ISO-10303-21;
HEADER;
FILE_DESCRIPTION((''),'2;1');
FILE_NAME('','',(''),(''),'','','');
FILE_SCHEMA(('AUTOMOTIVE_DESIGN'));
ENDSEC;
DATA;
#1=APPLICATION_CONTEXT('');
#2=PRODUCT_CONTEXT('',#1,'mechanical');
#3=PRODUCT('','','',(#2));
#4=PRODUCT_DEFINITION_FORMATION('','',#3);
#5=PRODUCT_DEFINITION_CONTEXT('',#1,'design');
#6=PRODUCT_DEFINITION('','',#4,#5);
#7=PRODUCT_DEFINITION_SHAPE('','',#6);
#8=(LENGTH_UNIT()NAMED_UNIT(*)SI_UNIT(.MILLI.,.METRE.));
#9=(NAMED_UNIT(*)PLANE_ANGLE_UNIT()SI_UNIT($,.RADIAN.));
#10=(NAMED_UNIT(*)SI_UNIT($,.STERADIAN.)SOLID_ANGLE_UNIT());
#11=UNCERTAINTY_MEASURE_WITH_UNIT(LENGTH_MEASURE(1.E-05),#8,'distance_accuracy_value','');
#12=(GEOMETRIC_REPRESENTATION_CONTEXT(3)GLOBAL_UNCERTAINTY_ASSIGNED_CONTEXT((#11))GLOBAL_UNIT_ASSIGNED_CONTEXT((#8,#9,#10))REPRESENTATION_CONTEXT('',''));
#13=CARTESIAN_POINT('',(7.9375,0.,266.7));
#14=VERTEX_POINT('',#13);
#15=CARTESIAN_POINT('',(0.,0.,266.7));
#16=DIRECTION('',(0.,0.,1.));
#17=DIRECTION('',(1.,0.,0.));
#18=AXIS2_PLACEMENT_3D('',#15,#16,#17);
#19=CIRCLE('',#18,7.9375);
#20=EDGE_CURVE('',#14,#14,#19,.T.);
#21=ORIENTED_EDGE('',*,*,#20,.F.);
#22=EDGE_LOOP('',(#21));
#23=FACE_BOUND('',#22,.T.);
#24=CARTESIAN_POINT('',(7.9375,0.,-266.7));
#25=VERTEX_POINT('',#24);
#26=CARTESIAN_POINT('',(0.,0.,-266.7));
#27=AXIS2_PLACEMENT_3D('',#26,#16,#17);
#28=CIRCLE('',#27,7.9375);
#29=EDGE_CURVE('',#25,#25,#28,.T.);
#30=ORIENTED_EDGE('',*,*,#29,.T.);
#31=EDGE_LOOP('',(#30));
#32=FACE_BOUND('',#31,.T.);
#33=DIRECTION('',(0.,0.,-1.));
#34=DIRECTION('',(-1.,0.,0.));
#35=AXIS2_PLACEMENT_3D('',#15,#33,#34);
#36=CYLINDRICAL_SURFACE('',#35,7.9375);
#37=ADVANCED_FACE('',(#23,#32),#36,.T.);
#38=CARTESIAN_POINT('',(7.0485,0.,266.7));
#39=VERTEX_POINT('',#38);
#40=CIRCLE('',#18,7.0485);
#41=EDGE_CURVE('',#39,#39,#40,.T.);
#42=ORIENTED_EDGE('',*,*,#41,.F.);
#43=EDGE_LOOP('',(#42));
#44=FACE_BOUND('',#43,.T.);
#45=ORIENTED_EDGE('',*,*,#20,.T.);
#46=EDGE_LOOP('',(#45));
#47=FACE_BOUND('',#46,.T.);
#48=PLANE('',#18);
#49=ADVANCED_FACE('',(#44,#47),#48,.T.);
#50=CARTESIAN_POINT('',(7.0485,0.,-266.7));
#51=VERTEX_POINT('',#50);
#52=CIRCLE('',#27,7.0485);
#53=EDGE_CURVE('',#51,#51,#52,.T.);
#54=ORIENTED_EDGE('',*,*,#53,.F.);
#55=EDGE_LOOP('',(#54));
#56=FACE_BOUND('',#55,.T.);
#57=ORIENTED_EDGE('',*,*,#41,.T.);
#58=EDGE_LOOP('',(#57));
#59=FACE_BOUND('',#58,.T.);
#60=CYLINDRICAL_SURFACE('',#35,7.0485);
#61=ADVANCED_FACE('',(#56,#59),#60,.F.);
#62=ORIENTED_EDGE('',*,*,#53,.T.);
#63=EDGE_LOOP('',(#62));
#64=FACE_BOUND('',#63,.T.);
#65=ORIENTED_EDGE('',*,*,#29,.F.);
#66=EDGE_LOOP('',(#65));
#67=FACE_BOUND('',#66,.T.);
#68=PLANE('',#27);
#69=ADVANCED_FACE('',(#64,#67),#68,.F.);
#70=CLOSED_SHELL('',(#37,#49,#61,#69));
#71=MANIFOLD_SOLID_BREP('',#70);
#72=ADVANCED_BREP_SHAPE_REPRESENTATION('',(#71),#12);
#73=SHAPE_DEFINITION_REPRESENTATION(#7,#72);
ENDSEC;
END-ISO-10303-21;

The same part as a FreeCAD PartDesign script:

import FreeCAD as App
import Part
import Sketcher
Q = App.Units.Quantity

doc = App.newDocument("Part")
body = doc.addObject("PartDesign::Body", "Body")

# Sketch on XY plane
sketch1 = doc.addObject("Sketcher::SketchObject", "Sketch")
body.addObject(sketch1)
sketch1.AttachmentSupport = (doc.XY_Plane, [""])
sketch1.MapMode = "FlatFace"
sketch1.addGeometry([
    Part.Circle(App.Vector(0, 0, 0), App.Vector(0, 0, 1), 7.9375),
    Part.Circle(App.Vector(0, 0, 0), App.Vector(0, 0, 1), 7.0485),
], False)
sketch1.addConstraint([
    Sketcher.Constraint("Coincident", 0, 3, -1, 1),
    Sketcher.Constraint("Coincident", 1, 3, -1, 1),
    Sketcher.Constraint("Diameter", 0, Q("0.625 in")),
    Sketcher.Constraint("Diameter", 1, Q("0.555 in")),
])
pad1 = doc.addObject("PartDesign::Pad", "Pad")
body.addObject(pad1)
pad1.Profile = sketch1
pad1.Length = Q("21 in")
pad1.Midplane = True

doc.recompute()
